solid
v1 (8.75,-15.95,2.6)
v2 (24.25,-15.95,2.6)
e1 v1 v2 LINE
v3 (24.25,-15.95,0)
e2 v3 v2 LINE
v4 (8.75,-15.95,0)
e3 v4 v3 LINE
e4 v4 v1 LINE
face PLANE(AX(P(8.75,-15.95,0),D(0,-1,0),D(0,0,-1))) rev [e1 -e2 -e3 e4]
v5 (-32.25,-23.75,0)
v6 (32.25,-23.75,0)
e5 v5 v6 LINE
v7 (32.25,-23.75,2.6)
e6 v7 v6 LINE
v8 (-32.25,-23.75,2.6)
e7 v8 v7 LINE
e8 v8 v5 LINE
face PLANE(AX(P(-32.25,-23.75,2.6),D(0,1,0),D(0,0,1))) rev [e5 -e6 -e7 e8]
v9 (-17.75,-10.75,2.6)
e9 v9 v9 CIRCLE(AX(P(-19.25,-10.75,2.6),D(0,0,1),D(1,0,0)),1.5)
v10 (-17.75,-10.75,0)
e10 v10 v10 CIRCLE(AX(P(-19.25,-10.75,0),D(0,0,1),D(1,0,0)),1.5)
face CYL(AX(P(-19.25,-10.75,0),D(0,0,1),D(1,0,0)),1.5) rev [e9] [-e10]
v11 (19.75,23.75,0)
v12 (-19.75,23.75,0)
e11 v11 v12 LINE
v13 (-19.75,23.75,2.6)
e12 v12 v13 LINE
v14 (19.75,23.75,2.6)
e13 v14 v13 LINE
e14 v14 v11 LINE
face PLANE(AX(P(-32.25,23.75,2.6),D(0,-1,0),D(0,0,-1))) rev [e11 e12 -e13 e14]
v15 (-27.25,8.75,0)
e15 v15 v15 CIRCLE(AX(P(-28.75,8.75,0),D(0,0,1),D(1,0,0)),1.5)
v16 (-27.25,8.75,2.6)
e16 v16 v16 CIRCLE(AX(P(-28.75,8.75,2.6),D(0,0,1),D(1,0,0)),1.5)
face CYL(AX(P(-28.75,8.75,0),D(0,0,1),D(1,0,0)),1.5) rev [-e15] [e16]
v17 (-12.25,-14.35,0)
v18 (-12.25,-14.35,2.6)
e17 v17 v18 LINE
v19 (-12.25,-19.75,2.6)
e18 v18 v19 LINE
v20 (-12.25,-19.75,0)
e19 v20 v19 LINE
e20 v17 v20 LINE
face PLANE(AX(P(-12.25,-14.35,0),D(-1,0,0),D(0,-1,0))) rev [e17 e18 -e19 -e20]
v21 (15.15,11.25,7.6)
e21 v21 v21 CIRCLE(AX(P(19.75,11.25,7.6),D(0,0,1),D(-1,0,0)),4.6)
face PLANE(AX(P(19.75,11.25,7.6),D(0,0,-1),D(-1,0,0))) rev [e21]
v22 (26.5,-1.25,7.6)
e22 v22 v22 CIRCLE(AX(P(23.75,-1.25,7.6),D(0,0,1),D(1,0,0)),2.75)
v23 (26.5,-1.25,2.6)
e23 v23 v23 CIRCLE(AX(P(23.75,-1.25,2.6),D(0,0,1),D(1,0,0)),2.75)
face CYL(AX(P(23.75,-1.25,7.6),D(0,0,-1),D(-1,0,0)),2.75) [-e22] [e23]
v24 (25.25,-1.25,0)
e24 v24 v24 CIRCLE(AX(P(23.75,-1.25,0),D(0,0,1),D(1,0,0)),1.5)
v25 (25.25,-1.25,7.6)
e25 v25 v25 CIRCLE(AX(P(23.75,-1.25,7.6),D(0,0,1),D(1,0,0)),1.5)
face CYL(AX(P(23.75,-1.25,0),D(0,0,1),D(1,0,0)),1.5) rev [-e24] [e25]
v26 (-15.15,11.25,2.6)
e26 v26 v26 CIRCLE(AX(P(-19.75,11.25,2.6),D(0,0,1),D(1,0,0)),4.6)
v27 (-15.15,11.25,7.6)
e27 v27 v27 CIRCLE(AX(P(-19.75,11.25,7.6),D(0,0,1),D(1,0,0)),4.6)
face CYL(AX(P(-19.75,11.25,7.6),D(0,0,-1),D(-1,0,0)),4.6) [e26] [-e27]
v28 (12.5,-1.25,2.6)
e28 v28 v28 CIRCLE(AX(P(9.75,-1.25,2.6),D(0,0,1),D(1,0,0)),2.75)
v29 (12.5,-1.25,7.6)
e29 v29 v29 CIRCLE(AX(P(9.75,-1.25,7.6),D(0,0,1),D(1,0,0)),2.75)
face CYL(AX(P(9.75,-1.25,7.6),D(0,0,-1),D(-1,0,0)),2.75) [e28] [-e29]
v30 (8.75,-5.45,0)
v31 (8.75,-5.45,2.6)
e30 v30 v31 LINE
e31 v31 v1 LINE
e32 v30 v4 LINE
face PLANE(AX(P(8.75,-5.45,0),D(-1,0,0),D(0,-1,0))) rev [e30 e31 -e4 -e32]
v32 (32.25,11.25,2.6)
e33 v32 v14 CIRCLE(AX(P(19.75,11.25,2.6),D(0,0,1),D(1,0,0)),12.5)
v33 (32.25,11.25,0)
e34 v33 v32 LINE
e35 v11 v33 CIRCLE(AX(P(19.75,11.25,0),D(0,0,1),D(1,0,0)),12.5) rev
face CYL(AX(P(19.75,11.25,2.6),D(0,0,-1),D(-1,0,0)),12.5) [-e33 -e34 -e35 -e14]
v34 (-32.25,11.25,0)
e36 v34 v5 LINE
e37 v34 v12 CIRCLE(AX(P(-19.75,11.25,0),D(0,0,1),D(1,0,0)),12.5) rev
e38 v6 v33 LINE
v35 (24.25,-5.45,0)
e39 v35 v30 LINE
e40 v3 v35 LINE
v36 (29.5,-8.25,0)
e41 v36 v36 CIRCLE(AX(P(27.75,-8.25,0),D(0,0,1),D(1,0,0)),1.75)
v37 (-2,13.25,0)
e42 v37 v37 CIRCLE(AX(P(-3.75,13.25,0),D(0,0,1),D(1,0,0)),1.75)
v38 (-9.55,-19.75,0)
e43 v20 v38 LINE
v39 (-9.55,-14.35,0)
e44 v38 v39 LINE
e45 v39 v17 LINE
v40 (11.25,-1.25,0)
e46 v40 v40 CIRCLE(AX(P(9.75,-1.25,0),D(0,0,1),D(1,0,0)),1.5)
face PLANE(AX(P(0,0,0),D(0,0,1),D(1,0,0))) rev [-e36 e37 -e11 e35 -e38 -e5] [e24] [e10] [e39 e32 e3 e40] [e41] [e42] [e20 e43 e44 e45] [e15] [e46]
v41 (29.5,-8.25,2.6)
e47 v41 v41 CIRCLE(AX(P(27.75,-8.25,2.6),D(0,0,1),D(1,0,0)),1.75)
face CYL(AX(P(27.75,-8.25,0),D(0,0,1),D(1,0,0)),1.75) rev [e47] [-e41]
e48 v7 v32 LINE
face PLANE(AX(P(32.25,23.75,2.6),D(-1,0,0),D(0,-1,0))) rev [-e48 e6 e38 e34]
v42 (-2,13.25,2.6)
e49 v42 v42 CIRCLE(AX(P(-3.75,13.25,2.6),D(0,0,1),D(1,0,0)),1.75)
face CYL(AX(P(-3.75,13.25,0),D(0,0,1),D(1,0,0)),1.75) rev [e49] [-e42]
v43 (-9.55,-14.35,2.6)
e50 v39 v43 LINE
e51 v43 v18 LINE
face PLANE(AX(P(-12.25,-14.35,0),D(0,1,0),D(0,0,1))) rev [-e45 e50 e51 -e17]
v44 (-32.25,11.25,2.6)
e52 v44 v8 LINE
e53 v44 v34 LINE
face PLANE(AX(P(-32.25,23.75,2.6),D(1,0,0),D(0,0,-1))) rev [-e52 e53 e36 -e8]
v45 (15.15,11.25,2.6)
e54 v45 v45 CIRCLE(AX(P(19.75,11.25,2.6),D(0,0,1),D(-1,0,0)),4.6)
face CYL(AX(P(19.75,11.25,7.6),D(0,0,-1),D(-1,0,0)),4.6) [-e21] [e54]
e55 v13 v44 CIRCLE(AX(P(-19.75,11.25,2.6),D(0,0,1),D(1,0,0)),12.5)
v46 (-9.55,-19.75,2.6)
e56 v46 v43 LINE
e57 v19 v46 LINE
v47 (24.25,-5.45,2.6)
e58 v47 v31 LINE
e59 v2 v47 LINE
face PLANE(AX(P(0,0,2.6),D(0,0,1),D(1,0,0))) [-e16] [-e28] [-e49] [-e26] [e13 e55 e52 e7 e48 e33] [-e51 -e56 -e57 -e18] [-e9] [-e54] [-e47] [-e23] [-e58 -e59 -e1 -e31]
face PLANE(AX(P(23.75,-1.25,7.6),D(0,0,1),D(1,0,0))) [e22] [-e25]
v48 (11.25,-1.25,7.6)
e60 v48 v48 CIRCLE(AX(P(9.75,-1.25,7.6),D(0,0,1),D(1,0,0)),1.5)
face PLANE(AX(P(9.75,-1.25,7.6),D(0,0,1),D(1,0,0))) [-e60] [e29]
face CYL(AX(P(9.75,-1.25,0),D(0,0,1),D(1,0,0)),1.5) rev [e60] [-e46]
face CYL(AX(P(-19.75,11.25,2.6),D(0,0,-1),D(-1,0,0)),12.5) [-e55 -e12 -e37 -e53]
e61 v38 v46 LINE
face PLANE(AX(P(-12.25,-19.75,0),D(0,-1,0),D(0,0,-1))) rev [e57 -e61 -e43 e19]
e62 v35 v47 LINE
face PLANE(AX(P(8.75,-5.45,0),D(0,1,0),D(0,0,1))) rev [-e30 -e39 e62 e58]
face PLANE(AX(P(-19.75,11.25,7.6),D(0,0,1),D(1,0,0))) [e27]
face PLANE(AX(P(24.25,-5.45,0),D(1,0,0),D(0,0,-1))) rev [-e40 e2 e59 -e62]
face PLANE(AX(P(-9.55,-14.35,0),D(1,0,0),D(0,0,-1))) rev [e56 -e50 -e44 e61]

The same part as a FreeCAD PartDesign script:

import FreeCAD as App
import Part
import Sketcher
from FreeCAD import Vector
Q = App.Units.Quantity


def edges_at(feature, points):
    """Names of the edges that pass closest to the given points."""
    edges = feature.Shape.Edges
    near = lambda p: min(range(len(edges)), key=lambda i: edges[i].distToShape(Part.Vertex(*p))[0])
    return sorted({f"Edge{near(p) + 1}" for p in points})


def add_polygon(sketch, points):
    """Adds a closed chain of lines whose ends are joined by coincident constraints."""
    first, n = sketch.GeometryCount, len(points)
    for a, b in zip(points, points[1:] + points[:1]):
        sketch.addGeometry(Part.LineSegment(App.Vector(*a, 0), App.Vector(*b, 0)), False)
    for i in range(n):
        sketch.addConstraint(Sketcher.Constraint("Coincident", first + i, 2, first + (i + 1) % n, 1))

doc = App.newDocument("Part")
params = doc.addObject("Spreadsheet::Sheet", "Params")
for row, (alias, value) in enumerate([
    ("sketch1_width", "64.5 mm"),
    ("sketch1_height", "47.5 mm"),
    ("pad1_length", "2.6 mm"),
    ("fillet_radius", "12.5 mm"),
    ("sketch2_diameter", "3 mm"),
    ("sketch2_diameter2", "3.5 mm"),
    ("sketch2_width", "2.7 mm"),
    ("sketch2_width2", "15.5 mm"),
    ("sketch2_height", "5.4 mm"),
    ("pocket1_length", "2.6 mm"),
    ("sketch3_diameter", "9.2 mm"),
    ("sketch3_diameter2", "5.5 mm"),
    ("pad2_length", "5 mm"),
    ("sketch4_diameter", "3 mm"),
    ("pocket2_length", "26 mm"),
], start=1):
    params.set(f"A{row}", alias)
    params.set(f"B{row}", "=" + value)
    params.setAlias(f"B{row}", alias)

body = doc.addObject("PartDesign::Body", "Body")

# Sketch on XY plane
sketch1 = body.newObject("Sketcher::SketchObject", "Sketch")
sketch1.AttachmentSupport = (doc.getObject("XY_Plane"), [""])
sketch1.MapMode = "FlatFace"
add_polygon(sketch1, [(-32.25, 23.75), (-32.25, -23.75), (32.25, -23.75), (32.25, 23.75)])  # lines 0-3
sketch1.addConstraint(Sketcher.Constraint("Vertical", 0))
sketch1.addConstraint(Sketcher.Constraint("Horizontal", 1))
sketch1.addConstraint(Sketcher.Constraint("Vertical", 2))
sketch1.addConstraint(Sketcher.Constraint("Horizontal", 3))
sketch1.addConstraint(Sketcher.Constraint("Symmetric", 0, 2, 2, 2, -1, 1))
sketch1.addConstraint(Sketcher.Constraint("DistanceX", 1, 1, 1, 2, Q("64.5 mm")))
sketch1.addConstraint(Sketcher.Constraint("DistanceY", 0, 2, 0, 1, Q("47.5 mm")))
sketch1.setExpression("Constraints[9]", "Params.sketch1_width")
sketch1.setExpression("Constraints[10]", "Params.sketch1_height")
pad1 = body.newObject("PartDesign::Pad", "Pad")
pad1.Profile = sketch1
pad1.setExpression("Length", "Params.pad1_length")
doc.recompute()

fillet = body.newObject("PartDesign::Fillet", "Fillet")
fillet.Base = (pad1, edges_at(pad1, [(-32.25, 23.75, 1.3), (32.25, 23.75, 1.3)]))
fillet.setExpression("Radius", "Params.fillet_radius")

# Sketch on XY plane
sketch2 = body.newObject("Sketcher::SketchObject", "Sketch001")
sketch2.AttachmentSupport = (doc.getObject("XY_Plane"), [""])
sketch2.MapMode = "FlatFace"
sketch2.AttachmentOffset = App.Placement(Vector(0, 0, 2.6), App.Rotation())
sketch2.addGeometry(Part.Circle(Vector(-19.25, -10.75, 0), Vector(0, 0, 1), 1.5), False)  # 0
sketch2.addGeometry(Part.Circle(Vector(-28.75, 8.75, 0), Vector(0, 0, 1), 1.5), False)  # 1
sketch2.addGeometry(Part.Circle(Vector(27.75, -8.25, 0), Vector(0, 0, 1), 1.75), False)  # 2
sketch2.addGeometry(Part.Circle(Vector(23.75, -1.25, 0), Vector(0, 0, 1), 1.5), False)  # 3
sketch2.addGeometry(Part.Circle(Vector(9.75, -1.25, 0), Vector(0, 0, 1), 1.5), False)  # 4
sketch2.addGeometry(Part.Circle(Vector(-3.75, 13.25, 0), Vector(0, 0, 1), 1.75), False)  # 5
add_polygon(sketch2, [(-12.25, -14.35), (-12.25, -19.75), (-9.55, -19.75), (-9.55, -14.35)])  # lines 6-9
add_polygon(sketch2, [(8.75, -5.45), (8.75, -15.95), (24.25, -15.95), (24.25, -5.45)])  # lines 10-13
sketch2.addConstraint(Sketcher.Constraint("Vertical", 6))
sketch2.addConstraint(Sketcher.Constraint("Horizontal", 7))
sketch2.addConstraint(Sketcher.Constraint("Vertical", 8))
sketch2.addConstraint(Sketcher.Constraint("Horizontal", 9))
sketch2.addConstraint(Sketcher.Constraint("Vertical", 10))
sketch2.addConstraint(Sketcher.Constraint("Horizontal", 11))
sketch2.addConstraint(Sketcher.Constraint("Vertical", 12))
sketch2.addConstraint(Sketcher.Constraint("Horizontal", 13))
sketch2.addConstraint(Sketcher.Constraint("Equal", 0, 1))
sketch2.addConstraint(Sketcher.Constraint("Equal", 1, 3))
sketch2.addConstraint(Sketcher.Constraint("Equal", 3, 4))
sketch2.addConstraint(Sketcher.Constraint("Equal", 2, 5))
sketch2.addConstraint(Sketcher.Constraint("Horizontal", 3, 3, 4, 3))
sketch2.addConstraint(Sketcher.Constraint("Diameter", 0, Q("3 mm")))
sketch2.addConstraint(Sketcher.Constraint("Diameter", 2, Q("3.5 mm")))
sketch2.addConstraint(Sketcher.Constraint("DistanceX", 7, 1, 7, 2, Q("2.7 mm")))
sketch2.addConstraint(Sketcher.Constraint("DistanceX", 11, 1, 11, 2, Q("15.5 mm")))
sketch2.addConstraint(Sketcher.Constraint("DistanceY", 6, 2, 6, 1, Q("5.4 mm")))
sketch2.addConstraint(Sketcher.Constraint("DistanceY", 10, 2, 10, 1, Q("10.5 mm")))
sketch2.addConstraint(Sketcher.Constraint("DistanceX", 0, 3, 2, 3, Q("47 mm")))
sketch2.addConstraint(Sketcher.Constraint("DistanceY", 2, 3, 1, 3, Q("17 mm")))
sketch2.addConstraint(Sketcher.Constraint("DistanceX", 3, 3, 2, 3, Q("4 mm")))
sketch2.addConstraint(Sketcher.Constraint("DistanceY", 2, 3, 3, 3, Q("7 mm")))
sketch2.addConstraint(Sketcher.Constraint("DistanceX", 4, 3, 3, 3, Q("14 mm")))
sketch2.addConstraint(Sketcher.Constraint("DistanceX", 1, 3, 5, 3, Q("25 mm")))
sketch2.addConstraint(Sketcher.Constraint("DistanceY", 0, 3, 5, 3, Q("24 mm")))
sketch2.addConstraint(Sketcher.Constraint("DistanceX", 0, 3, 6, 2, Q("7 mm")))
sketch2.addConstraint(Sketcher.Constraint("DistanceY", 6, 2, 0, 3, Q("9 mm")))
sketch2.addConstraint(Sketcher.Constraint("DistanceX", 10, 2, 4, 3, Q("1 mm")))
sketch2.addConstraint(Sketcher.Constraint("DistanceX", 1, 3, 0, 3, Q("9.5 mm")))
sketch2.addConstraint(Sketcher.Constraint("DistanceY", 0, 3, 1, 3, Q("19.5 mm")))
sketch2.addConstraint(Sketcher.Constraint("DistanceY", 10, 2, 4, 3, Q("14.7 mm")))
sketch2.addConstraint(Sketcher.Constraint("DistanceX", 0, 3, -1, 1, Q("19.25 mm")))
sketch2.addConstraint(Sketcher.Constraint("DistanceY", 0, 3, -1, 1, Q("10.75 mm")))
sketch2.setExpression("Constraints[21]", "Params.sketch2_diameter")
sketch2.setExpression("Constraints[22]", "Params.sketch2_diameter2")
sketch2.setExpression("Constraints[23]", "Params.sketch2_width")
sketch2.setExpression("Constraints[24]", "Params.sketch2_width2")
sketch2.setExpression("Constraints[25]", "Params.sketch2_height")
pocket1 = body.newObject("PartDesign::Pocket", "Pocket")
pocket1.Profile = sketch2
pocket1.setExpression("Length", "Params.pocket1_length")

# Sketch on XY plane
sketch3 = body.newObject("Sketcher::SketchObject", "Sketch002")
sketch3.AttachmentSupport = (doc.getObject("XY_Plane"), [""])
sketch3.MapMode = "FlatFace"
sketch3.AttachmentOffset = App.Placement(Vector(0, 0, 2.6), App.Rotation())
sketch3.addGeometry(Part.Circle(Vector(-19.75, 11.25, 0), Vector(0, 0, 1), 4.6), False)
sketch3.addGeometry(Part.Circle(Vector(19.75, 11.25, 0), Vector(0, 0, 1), 4.6), False)
sketch3.addGeometry(Part.Circle(Vector(9.75, -1.25, 0), Vector(0, 0, 1), 2.75), False)
sketch3.addGeometry(Part.Circle(Vector(23.75, -1.25, 0), Vector(0, 0, 1), 2.75), False)
sketch3.addConstraint(Sketcher.Constraint("Equal", 0, 1))
sketch3.addConstraint(Sketcher.Constraint("Equal", 2, 3))
sketch3.addConstraint(Sketcher.Constraint("Symmetric", 0, 3, 1, 3, -2))
sketch3.addConstraint(Sketcher.Constraint("Horizontal", 2, 3, 3, 3))
sketch3.addConstraint(Sketcher.Constraint("Diameter", 0, Q("9.2 mm")))
sketch3.addConstraint(Sketcher.Constraint("Diameter", 2, Q("5.5 mm")))
sketch3.addConstraint(Sketcher.Constraint("DistanceX", 2, 3, 1, 3, Q("10 mm")))
sketch3.addConstraint(Sketcher.Constraint("DistanceX", 1, 3, 3, 3, Q("4 mm")))
sketch3.addConstraint(Sketcher.Constraint("DistanceX", 0, 3, 1, 3, Q("39.5 mm")))
sketch3.addConstraint(Sketcher.Constraint("DistanceY", 2, 3, 1, 3, Q("12.5 mm")))
sketch3.addConstraint(Sketcher.Constraint("DistanceY", -1, 1, 0, 3, Q("11.25 mm")))
sketch3.setExpression("Constraints[4]", "Params.sketch3_diameter")
sketch3.setExpression("Constraints[5]", "Params.sketch3_diameter2")
pad2 = body.newObject("PartDesign::Pad", "Pad001")
pad2.Profile = sketch3
pad2.setExpression("Length", "Params.pad2_length")

# Sketch on XY plane
sketch4 = body.newObject("Sketcher::SketchObject", "Sketch003")
sketch4.AttachmentSupport = (doc.getObject("XY_Plane"), [""])
sketch4.MapMode = "FlatFace"
sketch4.AttachmentOffset = App.Placement(Vector(0, 0, 26), App.Rotation())
sketch4.addGeometry(Part.Circle(Vector(23.75, -1.25, 0), Vector(0, 0, 1), 1.5), False)
sketch4.addGeometry(Part.Circle(Vector(9.75, -1.25, 0), Vector(0, 0, 1), 1.5), False)
sketch4.addConstraint(Sketcher.Constraint("Equal", 0, 1))
sketch4.addConstraint(Sketcher.Constraint("Horizontal", 0, 3, 1, 3))
sketch4.addConstraint(Sketcher.Constraint("Diameter", 0, Q("3 mm")))
sketch4.addConstraint(Sketcher.Constraint("DistanceX", 1, 3, 0, 3, Q("14 mm")))
sketch4.addConstraint(Sketcher.Constraint("DistanceX", -1, 1, 0, 3, Q("23.75 mm")))
sketch4.addConstraint(Sketcher.Constraint("DistanceY", 0, 3, -1, 1, Q("1.25 mm")))
sketch4.setExpression("Constraints[2]", "Params.sketch4_diameter")
pocket2 = body.newObject("PartDesign::Pocket", "Pocket001")
pocket2.Profile = sketch4
pocket2.setExpression("Length", "Params.pocket2_length")

doc.recompute()
